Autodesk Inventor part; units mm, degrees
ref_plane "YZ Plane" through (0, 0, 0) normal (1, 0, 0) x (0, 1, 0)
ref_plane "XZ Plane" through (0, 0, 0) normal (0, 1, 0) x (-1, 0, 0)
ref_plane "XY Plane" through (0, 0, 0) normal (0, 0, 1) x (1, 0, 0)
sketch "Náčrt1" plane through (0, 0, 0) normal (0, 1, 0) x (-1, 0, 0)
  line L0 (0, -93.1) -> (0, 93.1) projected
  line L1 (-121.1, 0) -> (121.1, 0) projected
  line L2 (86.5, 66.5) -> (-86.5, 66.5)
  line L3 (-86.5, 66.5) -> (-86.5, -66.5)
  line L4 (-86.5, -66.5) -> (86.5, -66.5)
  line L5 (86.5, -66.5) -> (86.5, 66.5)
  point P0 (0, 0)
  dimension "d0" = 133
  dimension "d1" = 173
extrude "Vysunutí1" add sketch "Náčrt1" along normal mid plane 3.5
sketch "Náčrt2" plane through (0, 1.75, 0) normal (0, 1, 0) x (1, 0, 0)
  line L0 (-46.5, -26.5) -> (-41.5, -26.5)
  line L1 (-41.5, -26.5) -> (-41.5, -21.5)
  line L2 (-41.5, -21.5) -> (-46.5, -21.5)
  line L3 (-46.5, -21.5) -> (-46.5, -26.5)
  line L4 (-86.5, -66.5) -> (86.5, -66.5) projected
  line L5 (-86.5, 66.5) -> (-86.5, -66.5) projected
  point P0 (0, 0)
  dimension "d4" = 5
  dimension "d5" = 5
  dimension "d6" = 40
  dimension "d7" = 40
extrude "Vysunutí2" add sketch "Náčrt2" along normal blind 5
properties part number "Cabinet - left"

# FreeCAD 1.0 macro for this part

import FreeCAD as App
import Part
import Sketcher

V = App.Vector
Q = App.Units.Quantity


def add_polygon(sketch, points):
    """Adds a closed chain of lines whose ends are joined by coincident constraints."""
    first, n = sketch.GeometryCount, len(points)
    for a, b in zip(points, points[1:] + points[:1]):
        sketch.addGeometry(Part.LineSegment(App.Vector(*a, 0), App.Vector(*b, 0)), False)
    for i in range(n):
        sketch.addConstraint(Sketcher.Constraint("Coincident", first + i, 2, first + (i + 1) % n, 1))

doc = App.newDocument("Part")
params = doc.addObject("Spreadsheet::Sheet", "Params")
for row, (alias, value) in enumerate([
    ("sketch1_width", "173 mm"),
    ("sketch1_height", "133 mm"),
    ("pad1_length", "3.5 mm"),
    ("sketch2_width", "5 mm"),
    ("pad2_length", "5 mm"),
], start=1):
    params.set(f"A{row}", alias)
    params.set(f"B{row}", "=" + value)
    params.setAlias(f"B{row}", alias)

body = doc.addObject("PartDesign::Body", "Body")

# Sketch on XZ plane
sketch1 = doc.addObject("Sketcher::SketchObject", "Sketch")
body.addObject(sketch1)
sketch1.AttachmentSupport = (doc.XZ_Plane, [""])
sketch1.MapMode = "FlatFace"
add_polygon(sketch1, [(86, -66), (-86, -66), (-86, 66), (86, 66)])  # lines 0-3
sketch1.addConstraint(Sketcher.Constraint("Horizontal", 0))
sketch1.addConstraint(Sketcher.Constraint("Vertical", 1))
sketch1.addConstraint(Sketcher.Constraint("Horizontal", 2))
sketch1.addConstraint(Sketcher.Constraint("Vertical", 3))
sketch1.addConstraint(Sketcher.Constraint("Symmetric", 0, 2, 2, 2, -1, 1))
sketch1.addConstraint(Sketcher.Constraint("DistanceX", 0, 2, 0, 1, Q("173 mm")))
sketch1.addConstraint(Sketcher.Constraint("DistanceY", 1, 1, 1, 2, Q("133 mm")))
sketch1.setExpression("Constraints[9]", "Params.sketch1_width")
sketch1.setExpression("Constraints[10]", "Params.sketch1_height")
pad1 = doc.addObject("PartDesign::Pad", "Pad")
body.addObject(pad1)
pad1.Profile = sketch1
pad1.setExpression("Length", "Params.pad1_length")
pad1.Midplane = True

# Sketch on XZ plane
sketch2 = doc.addObject("Sketcher::SketchObject", "Sketch001")
body.addObject(sketch2)
sketch2.AttachmentSupport = (doc.XZ_Plane, [""])
sketch2.MapMode = "FlatFace"
sketch2.AttachmentOffset = App.Placement(V(0, 0, -1.75), App.Rotation())
add_polygon(sketch2, [(-46, 22), (-46, 26), (-42, 26), (-42, 22)])  # lines 0-3
sketch2.addConstraint(Sketcher.Constraint("Vertical", 0))
sketch2.addConstraint(Sketcher.Constraint("Horizontal", 1))
sketch2.addConstraint(Sketcher.Constraint("Vertical", 2))
sketch2.addConstraint(Sketcher.Constraint("Horizontal", 3))
sketch2.addConstraint(Sketcher.Constraint("Equal", 3, 0))
sketch2.addConstraint(Sketcher.Constraint("DistanceX", 1, 1, 1, 2, Q("5 mm")))
sketch2.addConstraint(Sketcher.Constraint("DistanceX", 0, 2, -1, 1, Q("46.5 mm")))
sketch2.addConstraint(Sketcher.Constraint("DistanceY", -1, 1, 0, 2, Q("26.5 mm")))
sketch2.setExpression("Constraints[9]", "Params.sketch2_width")
pad2 = doc.addObject("PartDesign::Pad", "Pad001")
body.addObject(pad2)
pad2.Profile = sketch2
pad2.setExpression("Length", "Params.pad2_length")
pad2.Reversed = True

doc.recompute()
